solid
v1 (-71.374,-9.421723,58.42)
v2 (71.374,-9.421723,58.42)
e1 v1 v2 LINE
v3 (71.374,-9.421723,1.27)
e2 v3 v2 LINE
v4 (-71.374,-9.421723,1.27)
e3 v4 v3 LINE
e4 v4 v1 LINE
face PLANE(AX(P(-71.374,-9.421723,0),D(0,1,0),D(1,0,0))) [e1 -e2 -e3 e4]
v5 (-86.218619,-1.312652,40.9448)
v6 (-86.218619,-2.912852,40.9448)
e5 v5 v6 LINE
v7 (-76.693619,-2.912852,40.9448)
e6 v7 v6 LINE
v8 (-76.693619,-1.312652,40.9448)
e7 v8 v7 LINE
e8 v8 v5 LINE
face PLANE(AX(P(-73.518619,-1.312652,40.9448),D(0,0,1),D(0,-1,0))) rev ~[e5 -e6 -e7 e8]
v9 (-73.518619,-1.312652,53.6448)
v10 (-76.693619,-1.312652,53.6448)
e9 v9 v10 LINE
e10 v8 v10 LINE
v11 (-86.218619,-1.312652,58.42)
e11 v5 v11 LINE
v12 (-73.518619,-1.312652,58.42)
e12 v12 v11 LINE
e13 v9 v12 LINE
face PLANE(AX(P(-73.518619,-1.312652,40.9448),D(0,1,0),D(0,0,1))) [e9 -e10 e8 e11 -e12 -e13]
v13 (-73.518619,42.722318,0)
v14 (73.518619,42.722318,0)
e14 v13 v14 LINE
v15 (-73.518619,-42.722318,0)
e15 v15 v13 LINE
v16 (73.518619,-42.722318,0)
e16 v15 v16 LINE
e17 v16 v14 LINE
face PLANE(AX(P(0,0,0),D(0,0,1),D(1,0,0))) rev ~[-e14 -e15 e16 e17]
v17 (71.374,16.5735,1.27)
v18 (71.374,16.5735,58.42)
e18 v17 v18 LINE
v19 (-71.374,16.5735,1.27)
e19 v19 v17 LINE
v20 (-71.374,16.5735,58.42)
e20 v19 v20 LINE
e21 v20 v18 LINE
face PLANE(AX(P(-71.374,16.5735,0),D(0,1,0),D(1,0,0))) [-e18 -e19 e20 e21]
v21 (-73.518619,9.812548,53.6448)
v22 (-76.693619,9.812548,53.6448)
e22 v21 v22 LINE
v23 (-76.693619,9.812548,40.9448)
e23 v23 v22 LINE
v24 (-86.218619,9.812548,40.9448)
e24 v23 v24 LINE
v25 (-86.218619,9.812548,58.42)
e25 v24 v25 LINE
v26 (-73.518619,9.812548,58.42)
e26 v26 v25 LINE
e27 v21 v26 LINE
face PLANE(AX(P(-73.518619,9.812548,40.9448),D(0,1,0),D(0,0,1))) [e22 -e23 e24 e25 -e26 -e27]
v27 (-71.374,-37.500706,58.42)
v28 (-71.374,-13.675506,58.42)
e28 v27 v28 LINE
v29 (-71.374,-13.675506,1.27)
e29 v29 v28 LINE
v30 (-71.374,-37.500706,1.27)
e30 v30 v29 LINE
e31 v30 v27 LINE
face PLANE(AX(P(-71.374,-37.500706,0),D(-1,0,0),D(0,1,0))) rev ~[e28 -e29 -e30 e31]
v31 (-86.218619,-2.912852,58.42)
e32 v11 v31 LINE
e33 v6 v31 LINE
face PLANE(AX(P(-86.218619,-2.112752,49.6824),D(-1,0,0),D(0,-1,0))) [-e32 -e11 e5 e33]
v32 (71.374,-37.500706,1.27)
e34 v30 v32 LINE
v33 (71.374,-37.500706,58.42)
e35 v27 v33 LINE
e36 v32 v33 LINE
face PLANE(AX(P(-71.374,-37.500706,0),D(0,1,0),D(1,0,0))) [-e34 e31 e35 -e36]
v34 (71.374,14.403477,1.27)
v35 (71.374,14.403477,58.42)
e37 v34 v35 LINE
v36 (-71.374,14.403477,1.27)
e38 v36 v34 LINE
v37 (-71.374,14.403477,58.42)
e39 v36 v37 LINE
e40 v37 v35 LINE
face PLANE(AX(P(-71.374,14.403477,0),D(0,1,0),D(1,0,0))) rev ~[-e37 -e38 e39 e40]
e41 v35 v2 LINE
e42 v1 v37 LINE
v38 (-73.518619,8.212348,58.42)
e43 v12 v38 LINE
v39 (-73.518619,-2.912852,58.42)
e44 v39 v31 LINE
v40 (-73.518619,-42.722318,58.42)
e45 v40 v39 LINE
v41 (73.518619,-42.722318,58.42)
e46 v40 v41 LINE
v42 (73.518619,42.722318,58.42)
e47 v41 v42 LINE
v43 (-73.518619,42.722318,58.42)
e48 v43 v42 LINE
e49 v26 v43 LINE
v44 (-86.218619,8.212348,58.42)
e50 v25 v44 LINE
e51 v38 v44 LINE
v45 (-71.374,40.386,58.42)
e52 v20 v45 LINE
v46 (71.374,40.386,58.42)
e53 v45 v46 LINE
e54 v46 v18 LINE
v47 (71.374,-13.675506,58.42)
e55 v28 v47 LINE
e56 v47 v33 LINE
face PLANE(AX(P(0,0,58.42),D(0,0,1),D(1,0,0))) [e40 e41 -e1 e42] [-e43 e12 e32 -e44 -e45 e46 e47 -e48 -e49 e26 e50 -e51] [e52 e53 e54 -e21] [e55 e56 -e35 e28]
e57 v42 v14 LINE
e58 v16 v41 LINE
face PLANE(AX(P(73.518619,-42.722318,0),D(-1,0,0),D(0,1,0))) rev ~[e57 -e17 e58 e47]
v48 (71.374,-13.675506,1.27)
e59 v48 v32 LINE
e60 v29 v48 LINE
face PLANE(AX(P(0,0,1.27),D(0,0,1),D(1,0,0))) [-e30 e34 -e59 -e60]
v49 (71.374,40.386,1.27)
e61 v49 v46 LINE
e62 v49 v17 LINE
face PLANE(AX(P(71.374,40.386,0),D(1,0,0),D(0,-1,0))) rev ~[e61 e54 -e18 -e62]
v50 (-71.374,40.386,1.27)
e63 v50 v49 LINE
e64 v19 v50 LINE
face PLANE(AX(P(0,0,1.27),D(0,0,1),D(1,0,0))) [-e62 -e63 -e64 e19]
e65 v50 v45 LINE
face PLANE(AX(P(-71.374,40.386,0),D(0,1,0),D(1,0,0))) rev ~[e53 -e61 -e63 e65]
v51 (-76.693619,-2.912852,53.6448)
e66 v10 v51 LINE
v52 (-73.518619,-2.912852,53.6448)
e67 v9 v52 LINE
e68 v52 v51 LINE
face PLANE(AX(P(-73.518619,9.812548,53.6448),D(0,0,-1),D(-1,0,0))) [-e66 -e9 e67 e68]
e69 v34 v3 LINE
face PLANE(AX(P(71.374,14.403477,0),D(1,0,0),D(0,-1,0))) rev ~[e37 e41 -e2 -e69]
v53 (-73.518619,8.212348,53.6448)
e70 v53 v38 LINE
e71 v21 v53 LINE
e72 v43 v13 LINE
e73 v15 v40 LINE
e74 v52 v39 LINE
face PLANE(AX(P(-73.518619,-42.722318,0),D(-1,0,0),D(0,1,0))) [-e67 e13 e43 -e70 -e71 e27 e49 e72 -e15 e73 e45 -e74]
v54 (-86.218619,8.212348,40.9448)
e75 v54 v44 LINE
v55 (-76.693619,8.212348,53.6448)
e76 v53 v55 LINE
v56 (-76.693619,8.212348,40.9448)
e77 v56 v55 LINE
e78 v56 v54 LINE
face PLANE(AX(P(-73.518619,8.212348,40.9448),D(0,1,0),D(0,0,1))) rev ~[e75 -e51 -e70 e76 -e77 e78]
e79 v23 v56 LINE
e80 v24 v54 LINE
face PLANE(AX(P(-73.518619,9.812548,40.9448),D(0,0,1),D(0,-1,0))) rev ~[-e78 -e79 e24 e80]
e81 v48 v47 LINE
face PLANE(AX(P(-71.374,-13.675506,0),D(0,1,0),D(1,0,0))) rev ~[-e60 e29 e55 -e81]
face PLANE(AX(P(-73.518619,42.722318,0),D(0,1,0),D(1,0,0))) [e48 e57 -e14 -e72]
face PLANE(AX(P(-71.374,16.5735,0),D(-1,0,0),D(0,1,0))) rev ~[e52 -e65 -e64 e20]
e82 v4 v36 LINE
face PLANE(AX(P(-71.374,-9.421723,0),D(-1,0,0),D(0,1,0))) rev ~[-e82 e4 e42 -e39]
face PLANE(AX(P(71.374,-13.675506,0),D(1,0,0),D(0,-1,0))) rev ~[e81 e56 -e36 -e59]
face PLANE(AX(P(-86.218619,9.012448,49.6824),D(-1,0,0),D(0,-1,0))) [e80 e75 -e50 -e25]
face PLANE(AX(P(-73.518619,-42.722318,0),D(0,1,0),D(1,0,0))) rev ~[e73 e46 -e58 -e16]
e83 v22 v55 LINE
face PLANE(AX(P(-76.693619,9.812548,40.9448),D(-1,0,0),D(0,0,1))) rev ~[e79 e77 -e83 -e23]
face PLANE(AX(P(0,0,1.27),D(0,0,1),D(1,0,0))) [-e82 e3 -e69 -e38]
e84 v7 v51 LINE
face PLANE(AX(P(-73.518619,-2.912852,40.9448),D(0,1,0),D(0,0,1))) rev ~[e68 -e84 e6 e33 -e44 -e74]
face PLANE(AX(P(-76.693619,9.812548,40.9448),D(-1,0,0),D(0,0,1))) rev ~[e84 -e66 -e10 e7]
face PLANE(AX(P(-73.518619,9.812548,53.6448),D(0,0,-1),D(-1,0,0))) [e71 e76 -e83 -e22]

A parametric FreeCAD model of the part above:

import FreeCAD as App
import Part
import Sketcher
from FreeCAD import Vector
Q = App.Units.Quantity

doc = App.newDocument("Part")
body = doc.addObject("PartDesign::Body", "Body")

# Sketch on XY plane
sketch1 = body.newObject("Sketcher::SketchObject", "Sketch")
sketch1.AttachmentSupport = (doc.getObject("XY_Plane"), [""])
sketch1.MapMode = "FlatFace"
sketch1.addGeometry(Part.LineSegment(Vector(-74, 43, 0), Vector(-74, -43, 0)), False)
sketch1.addGeometry(Part.LineSegment(Vector(-74, -43, 0), Vector(74, -43, 0)), False)
sketch1.addGeometry(Part.LineSegment(Vector(74, -43, 0), Vector(74, 43, 0)), False)
sketch1.addGeometry(Part.LineSegment(Vector(74, 43, 0), Vector(-74, 43, 0)), False)
sketch1.addGeometry(Part.LineSegment(Vector(71, 40, 0), Vector(71, 17, 0)), False)
sketch1.addGeometry(Part.LineSegment(Vector(71, 17, 0), Vector(-71, 17, 0)), False)
sketch1.addGeometry(Part.LineSegment(Vector(-71, 17, 0), Vector(-71, 40, 0)), False)
sketch1.addGeometry(Part.LineSegment(Vector(-71, 40, 0), Vector(71, 40, 0)), False)
sketch1.addGeometry(Part.LineSegment(Vector(71, 14, 0), Vector(71, -9, 0)), False)
sketch1.addGeometry(Part.LineSegment(Vector(71, -9, 0), Vector(-71, -9, 0)), False)
sketch1.addGeometry(Part.LineSegment(Vector(-71, -9, 0), Vector(-71, 14, 0)), False)
sketch1.addGeometry(Part.LineSegment(Vector(-71, 14, 0), Vector(71, 14, 0)), False)
sketch1.addGeometry(Part.LineSegment(Vector(71, -14, 0), Vector(71, -38, 0)), False)
sketch1.addGeometry(Part.LineSegment(Vector(71, -38, 0), Vector(-71, -38, 0)), False)
sketch1.addGeometry(Part.LineSegment(Vector(-71, -38, 0), Vector(-71, -14, 0)), False)
sketch1.addGeometry(Part.LineSegment(Vector(-71, -14, 0), Vector(71, -14, 0)), False)
sketch1.addConstraint(Sketcher.Constraint("Coincident", 0, 2, 1, 1))
sketch1.addConstraint(Sketcher.Constraint("Coincident", 1, 2, 2, 1))
sketch1.addConstraint(Sketcher.Constraint("Coincident", 2, 2, 3, 1))
sketch1.addConstraint(Sketcher.Constraint("Coincident", 3, 2, 0, 1))
sketch1.addConstraint(Sketcher.Constraint("Coincident", 4, 2, 5, 1))
sketch1.addConstraint(Sketcher.Constraint("Coincident", 5, 2, 6, 1))
sketch1.addConstraint(Sketcher.Constraint("Coincident", 6, 2, 7, 1))
sketch1.addConstraint(Sketcher.Constraint("Coincident", 7, 2, 4, 1))
sketch1.addConstraint(Sketcher.Constraint("Coincident", 8, 2, 9, 1))
sketch1.addConstraint(Sketcher.Constraint("Coincident", 9, 2, 10, 1))
sketch1.addConstraint(Sketcher.Constraint("Coincident", 10, 2, 11, 1))
sketch1.addConstraint(Sketcher.Constraint("Coincident", 11, 2, 8, 1))
sketch1.addConstraint(Sketcher.Constraint("Coincident", 12, 2, 13, 1))
sketch1.addConstraint(Sketcher.Constraint("Coincident", 13, 2, 14, 1))
sketch1.addConstraint(Sketcher.Constraint("Coincident", 14, 2, 15, 1))
sketch1.addConstraint(Sketcher.Constraint("Coincident", 15, 2, 12, 1))
sketch1.addConstraint(Sketcher.Constraint("Vertical", 0))
sketch1.addConstraint(Sketcher.Constraint("Horizontal", 1))
sketch1.addConstraint(Sketcher.Constraint("Vertical", 2))
sketch1.addConstraint(Sketcher.Constraint("Horizontal", 3))
sketch1.addConstraint(Sketcher.Constraint("Vertical", 4))
sketch1.addConstraint(Sketcher.Constraint("Horizontal", 5))
sketch1.addConstraint(Sketcher.Constraint("Vertical", 6))
sketch1.addConstraint(Sketcher.Constraint("Horizontal", 7))
sketch1.addConstraint(Sketcher.Constraint("Vertical", 8))
sketch1.addConstraint(Sketcher.Constraint("Horizontal", 9))
sketch1.addConstraint(Sketcher.Constraint("Vertical", 10))
sketch1.addConstraint(Sketcher.Constraint("Horizontal", 11))
sketch1.addConstraint(Sketcher.Constraint("Vertical", 12))
sketch1.addConstraint(Sketcher.Constraint("Horizontal", 13))
sketch1.addConstraint(Sketcher.Constraint("Vertical", 14))
sketch1.addConstraint(Sketcher.Constraint("Horizontal", 15))
sketch1.addConstraint(Sketcher.Constraint("Symmetric", 0, 2, 2, 2, -1, 1))
sketch1.addConstraint(Sketcher.Constraint("Vertical", 7, 2, 8, 2))
sketch1.addConstraint(Sketcher.Constraint("Vertical", 6, 2, 9, 2))
sketch1.addConstraint(Sketcher.Constraint("Vertical", 11, 2, 12, 2))
sketch1.addConstraint(Sketcher.Constraint("Vertical", 10, 2, 13, 2))
sketch1.addConstraint(Sketcher.Constraint("Equal", 10, 12))
sketch1.addConstraint(Sketcher.Constraint("DistanceX", 5, 2, 5, 1, Q("5.62 in")))
sketch1.addConstraint(Sketcher.Constraint("DistanceY", 4, 2, 4, 1, Q("0.9375 in")))
sketch1.addConstraint(Sketcher.Constraint("DistanceY", 8, 2, 8, 1, Q("0.938 in")))
sketch1.addConstraint(Sketcher.Constraint("DistanceX", -1, 1, 4, 2, Q("2.81 in")))
sketch1.addConstraint(Sketcher.Constraint("DistanceY", -1, 1, 6, 2, Q("1.59 in")))
sketch1.addConstraint(Sketcher.Constraint("DistanceX", 1, 1, 1, 2, Q("147.037238 mm")))
sketch1.addConstraint(Sketcher.Constraint("DistanceY", 0, 2, 0, 1, Q("85.444637 mm")))
sketch1.addConstraint(Sketcher.Constraint("DistanceY", 8, 2, 2, 2, Q("52.144042 mm")))
sketch1.addConstraint(Sketcher.Constraint("DistanceY", 12, 2, -1, 1, Q("37.500706 mm")))
pad1 = body.newObject("PartDesign::Pad", "Pad")
pad1.Profile = sketch1
pad1.Length = Q("2.3 in")

# Sketch on XY plane
sketch2 = body.newObject("Sketcher::SketchObject", "Sketch001")
sketch2.AttachmentSupport = (doc.getObject("XY_Plane"), [""])
sketch2.MapMode = "FlatFace"
sketch2.addGeometry(Part.LineSegment(Vector(-73.5, 42.7, 0), Vector(-73.5, -42.7, 0)), False)
sketch2.addGeometry(Part.LineSegment(Vector(-73.5, -42.7, 0), Vector(73.5, -42.7, 0)), False)
sketch2.addGeometry(Part.LineSegment(Vector(73.5, -42.7, 0), Vector(73.5, 42.7, 0)), False)
sketch2.addGeometry(Part.LineSegment(Vector(73.5, 42.7, 0), Vector(-73.5, 42.7, 0)), False)
sketch2.addGeometry(Part.LineSegment(Vector(71.4, 16.6, 0), Vector(71.4, 14.4, 0)), False)
sketch2.addGeometry(Part.LineSegment(Vector(71.4, 14.4, 0), Vector(-71.4, 14.4, 0)), False)
sketch2.addGeometry(Part.LineSegment(Vector(-71.4, 14.4, 0), Vector(-71.4, 16.6, 0)), False)
sketch2.addGeometry(Part.LineSegment(Vector(-71.4, 16.6, 0), Vector(71.4, 16.6, 0)), False)
sketch2.addGeometry(Part.LineSegment(Vector(71.4, -9.4, 0), Vector(71.4, -13.7, 0)), False)
sketch2.addGeometry(Part.LineSegment(Vector(71.4, -13.7, 0), Vector(-71.4, -13.7, 0)), False)
sketch2.addGeometry(Part.LineSegment(Vector(-71.4, -13.7, 0), Vector(-71.4, -9.4, 0)), False)
sketch2.addGeometry(Part.LineSegment(Vector(-71.4, -9.4, 0), Vector(71.4, -9.4, 0)), False)
sketch2.addGeometry(Part.LineSegment(Vector(71.4, -37.5, 0), Vector(71.4, -40.4, 0)), False)
sketch2.addGeometry(Part.LineSegment(Vector(71.4, -40.4, 0), Vector(-71.4, -40.4, 0)), False)
sketch2.addGeometry(Part.LineSegment(Vector(-71.4, -40.4, 0), Vector(-71.4, -37.5, 0)), False)
sketch2.addGeometry(Part.LineSegment(Vector(-71.4, -37.5, 0), Vector(71.4, -37.5, 0)), False)
sketch2.addConstraint(Sketcher.Constraint("Coincident", 0, 2, 1, 1))
sketch2.addConstraint(Sketcher.Constraint("Coincident", 1, 2, 2, 1))
sketch2.addConstraint(Sketcher.Constraint("Coincident", 2, 2, 3, 1))
sketch2.addConstraint(Sketcher.Constraint("Coincident", 3, 2, 0, 1))
sketch2.addConstraint(Sketcher.Constraint("Coincident", 4, 2, 5, 1))
sketch2.addConstraint(Sketcher.Constraint("Coincident", 5, 2, 6, 1))
sketch2.addConstraint(Sketcher.Constraint("Coincident", 6, 2, 7, 1))
sketch2.addConstraint(Sketcher.Constraint("Coincident", 7, 2, 4, 1))
sketch2.addConstraint(Sketcher.Constraint("Coincident", 8, 2, 9, 1))
sketch2.addConstraint(Sketcher.Constraint("Coincident", 9, 2, 10, 1))
sketch2.addConstraint(Sketcher.Constraint("Coincident", 10, 2, 11, 1))
sketch2.addConstraint(Sketcher.Constraint("Coincident", 11, 2, 8, 1))
sketch2.addConstraint(Sketcher.Constraint("Coincident", 12, 2, 13, 1))
sketch2.addConstraint(Sketcher.Constraint("Coincident", 13, 2, 14, 1))
sketch2.addConstraint(Sketcher.Constraint("Coincident", 14, 2, 15, 1))
sketch2.addConstraint(Sketcher.Constraint("Coincident", 15, 2, 12, 1))
sketch2.addConstraint(Sketcher.Constraint("Vertical", 0))
sketch2.addConstraint(Sketcher.Constraint("Horizontal", 1))
sketch2.addConstraint(Sketcher.Constraint("Vertical", 2))
sketch2.addConstraint(Sketcher.Constraint("Horizontal", 3))
sketch2.addConstraint(Sketcher.Constraint("Vertical", 4))
sketch2.addConstraint(Sketcher.Constraint("Horizontal", 5))
sketch2.addConstraint(Sketcher.Constraint("Vertical", 6))
sketch2.addConstraint(Sketcher.Constraint("Horizontal", 7))
sketch2.addConstraint(Sketcher.Constraint("Vertical", 8))
sketch2.addConstraint(Sketcher.Constraint("Horizontal", 9))
sketch2.addConstraint(Sketcher.Constraint("Vertical", 10))
sketch2.addConstraint(Sketcher.Constraint("Horizontal", 11))
sketch2.addConstraint(Sketcher.Constraint("Vertical", 12))
sketch2.addConstraint(Sketcher.Constraint("Horizontal", 13))
sketch2.addConstraint(Sketcher.Constraint("Vertical", 14))
sketch2.addConstraint(Sketcher.Constraint("Horizontal", 15))
sketch2.addConstraint(Sketcher.Constraint("Symmetric", 0, 2, 2, 2, -1, 1))
sketch2.addConstraint(Sketcher.Constraint("Vertical", 7, 2, 8, 2))
sketch2.addConstraint(Sketcher.Constraint("Vertical", 6, 2, 9, 2))
sketch2.addConstraint(Sketcher.Constraint("Vertical", 11, 2, 12, 2))
sketch2.addConstraint(Sketcher.Constraint("Vertical", 10, 2, 13, 2))
sketch2.addConstraint(Sketcher.Constraint("DistanceX", 5, 2, 5, 1, Q("5.62 in")))
sketch2.addConstraint(Sketcher.Constraint("DistanceX", -1, 1, 4, 2, Q("2.81 in")))
sketch2.addConstraint(Sketcher.Constraint("DistanceY", 12, 2, -1, 1, Q("1.59 in")))
sketch2.addConstraint(Sketcher.Constraint("DistanceY", 10, 2, 5, 2, Q("0.938 in")))
sketch2.addConstraint(Sketcher.Constraint("DistanceY", 14, 2, 9, 2, Q("0.938 in")))
sketch2.addConstraint(Sketcher.Constraint("DistanceY", -1, 1, 6, 2, Q("0.6525 in")))
sketch2.addConstraint(Sketcher.Constraint("DistanceX", 1, 1, 1, 2, Q("147.037238 mm")))
sketch2.addConstraint(Sketcher.Constraint("DistanceY", 0, 2, 0, 1, Q("85.444637 mm")))
sketch2.addConstraint(Sketcher.Constraint("DistanceY", 4, 2, 4, 1, Q("2.170023 mm")))
sketch2.addConstraint(Sketcher.Constraint("DistanceY", 8, 2, 8, 1, Q("4.253783 mm")))
pad2 = body.newObject("PartDesign::Pad", "Pad001")
pad2.Profile = sketch2
pad2.Length = Q("0.05 in")

# Sketch on YZ plane
sketch3 = body.newObject("Sketcher::SketchObject", "Sketch002")
sketch3.AttachmentSupport = (doc.getObject("YZ_Plane"), [""])
sketch3.MapMode = "FlatFace"
sketch3.AttachmentOffset = App.Placement(Vector(0, 0, -73.518619), App.Rotation())
sketch3.addGeometry(Part.LineSegment(Vector(9.8, 58.4, 0), Vector(9.8, 40.9, 0)), False)
sketch3.addGeometry(Part.LineSegment(Vector(9.8, 40.9, 0), Vector(8.2, 40.9, 0)), False)
sketch3.addGeometry(Part.LineSegment(Vector(8.2, 40.9, 0), Vector(8.2, 58.4, 0)), False)
sketch3.addGeometry(Part.LineSegment(Vector(8.2, 58.4, 0), Vector(9.8, 58.4, 0)), False)
sketch3.addGeometry(Part.LineSegment(Vector(-1.3, 58.4, 0), Vector(-1.3, 40.9, 0)), False)
sketch3.addGeometry(Part.LineSegment(Vector(-1.3, 40.9, 0), Vector(-2.9, 40.9, 0)), False)
sketch3.addGeometry(Part.LineSegment(Vector(-2.9, 40.9, 0), Vector(-2.9, 58.4, 0)), False)
sketch3.addGeometry(Part.LineSegment(Vector(-2.9, 58.4, 0), Vector(-1.3, 58.4, 0)), False)
sketch3.addConstraint(Sketcher.Constraint("Coincident", 0, 2, 1, 1))
sketch3.addConstraint(Sketcher.Constraint("Coincident", 1, 2, 2, 1))
sketch3.addConstraint(Sketcher.Constraint("Coincident", 2, 2, 3, 1))
sketch3.addConstraint(Sketcher.Constraint("Coincident", 3, 2, 0, 1))
sketch3.addConstraint(Sketcher.Constraint("Coincident", 4, 2, 5, 1))
sketch3.addConstraint(Sketcher.Constraint("Coincident", 5, 2, 6, 1))
sketch3.addConstraint(Sketcher.Constraint("Coincident", 6, 2, 7, 1))
sketch3.addConstraint(Sketcher.Constraint("Coincident", 7, 2, 4, 1))
sketch3.addConstraint(Sketcher.Constraint("Vertical", 0))
sketch3.addConstraint(Sketcher.Constraint("Horizontal", 1))
sketch3.addConstraint(Sketcher.Constraint("Vertical", 2))
sketch3.addConstraint(Sketcher.Constraint("Horizontal", 3))
sketch3.addConstraint(Sketcher.Constraint("Vertical", 4))
sketch3.addConstraint(Sketcher.Constraint("Horizontal", 5))
sketch3.addConstraint(Sketcher.Constraint("Vertical", 6))
sketch3.addConstraint(Sketcher.Constraint("Horizontal", 7))
sketch3.addConstraint(Sketcher.Constraint("Horizontal", 1, 2, 4, 2))
sketch3.addConstraint(Sketcher.Constraint("Horizontal", 3, 2, 6, 2))
sketch3.addConstraint(Sketcher.Constraint("Equal", 3, 5))
sketch3.addConstraint(Sketcher.Constraint("DistanceY", -1, 1, 2, 2, Q("2.3 in")))
sketch3.addConstraint(Sketcher.Constraint("DistanceX", 1, 2, 1, 1, Q("0.063 in")))
sketch3.addConstraint(Sketcher.Constraint("DistanceY", 0, 2, 0, 1, Q("0.688 in")))
sketch3.addConstraint(Sketcher.Constraint("DistanceX", 4, 2, 1, 2, Q("0.375 in")))
sketch3.addConstraint(Sketcher.Constraint("DistanceX", -1, 1, 0, 2, Q("9.812548 mm")))
pad3 = body.newObject("PartDesign::Pad", "Pad002")
pad3.Profile = sketch3
pad3.Length = Q("0.5 in")
pad3.Reversed = True

# Sketch on XZ plane
sketch4 = body.newObject("Sketcher::SketchObject", "Sketch003")
sketch4.AttachmentSupport = (doc.getObject("XZ_Plane"), [""])
sketch4.MapMode = "FlatFace"
sketch4.AttachmentOffset = App.Placement(Vector(0, 0, -9.812548), App.Rotation())
sketch4.addGeometry(Part.LineSegment(Vector(-73.5, 53.6, 0), Vector(-73.5, 40.9, 0)), False)
sketch4.addGeometry(Part.LineSegment(Vector(-73.5, 40.9, 0), Vector(-76.7, 40.9, 0)), False)
sketch4.addGeometry(Part.LineSegment(Vector(-76.7, 40.9, 0), Vector(-76.7, 53.6, 0)), False)
sketch4.addGeometry(Part.LineSegment(Vector(-76.7, 53.6, 0), Vector(-73.5, 53.6, 0)), False)
sketch4.addConstraint(Sketcher.Constraint("Coincident", 0, 2, 1, 1))
sketch4.addConstraint(Sketcher.Constraint("Coincident", 1, 2, 2, 1))
sketch4.addConstraint(Sketcher.Constraint("Coincident", 2, 2, 3, 1))
sketch4.addConstraint(Sketcher.Constraint("Coincident", 3, 2, 0, 1))
sketch4.addConstraint(Sketcher.Constraint("Vertical", 0))
sketch4.addConstraint(Sketcher.Constraint("Horizontal", 1))
sketch4.addConstraint(Sketcher.Constraint("Vertical", 2))
sketch4.addConstraint(Sketcher.Constraint("Horizontal", 3))
sketch4.addConstraint(Sketcher.Constraint("DistanceY", 0, 2, 0, 1, Q("0.5 in")))
sketch4.addConstraint(Sketcher.Constraint("DistanceX", 1, 2, 1, 1, Q("0.125 in")))
sketch4.addConstraint(Sketcher.Constraint("DistanceY", -1, 1, 0, 2, Q("1.612 in")))
sketch4.addConstraint(Sketcher.Constraint("DistanceX", 0, 2, -1, 1, Q("73.518619 mm")))
pocket1 = body.newObject("PartDesign::Pocket", "Pocket")
pocket1.Profile = sketch4
pocket1.Length = Q("1 in")
pocket1.Reversed = True

doc.recompute()
